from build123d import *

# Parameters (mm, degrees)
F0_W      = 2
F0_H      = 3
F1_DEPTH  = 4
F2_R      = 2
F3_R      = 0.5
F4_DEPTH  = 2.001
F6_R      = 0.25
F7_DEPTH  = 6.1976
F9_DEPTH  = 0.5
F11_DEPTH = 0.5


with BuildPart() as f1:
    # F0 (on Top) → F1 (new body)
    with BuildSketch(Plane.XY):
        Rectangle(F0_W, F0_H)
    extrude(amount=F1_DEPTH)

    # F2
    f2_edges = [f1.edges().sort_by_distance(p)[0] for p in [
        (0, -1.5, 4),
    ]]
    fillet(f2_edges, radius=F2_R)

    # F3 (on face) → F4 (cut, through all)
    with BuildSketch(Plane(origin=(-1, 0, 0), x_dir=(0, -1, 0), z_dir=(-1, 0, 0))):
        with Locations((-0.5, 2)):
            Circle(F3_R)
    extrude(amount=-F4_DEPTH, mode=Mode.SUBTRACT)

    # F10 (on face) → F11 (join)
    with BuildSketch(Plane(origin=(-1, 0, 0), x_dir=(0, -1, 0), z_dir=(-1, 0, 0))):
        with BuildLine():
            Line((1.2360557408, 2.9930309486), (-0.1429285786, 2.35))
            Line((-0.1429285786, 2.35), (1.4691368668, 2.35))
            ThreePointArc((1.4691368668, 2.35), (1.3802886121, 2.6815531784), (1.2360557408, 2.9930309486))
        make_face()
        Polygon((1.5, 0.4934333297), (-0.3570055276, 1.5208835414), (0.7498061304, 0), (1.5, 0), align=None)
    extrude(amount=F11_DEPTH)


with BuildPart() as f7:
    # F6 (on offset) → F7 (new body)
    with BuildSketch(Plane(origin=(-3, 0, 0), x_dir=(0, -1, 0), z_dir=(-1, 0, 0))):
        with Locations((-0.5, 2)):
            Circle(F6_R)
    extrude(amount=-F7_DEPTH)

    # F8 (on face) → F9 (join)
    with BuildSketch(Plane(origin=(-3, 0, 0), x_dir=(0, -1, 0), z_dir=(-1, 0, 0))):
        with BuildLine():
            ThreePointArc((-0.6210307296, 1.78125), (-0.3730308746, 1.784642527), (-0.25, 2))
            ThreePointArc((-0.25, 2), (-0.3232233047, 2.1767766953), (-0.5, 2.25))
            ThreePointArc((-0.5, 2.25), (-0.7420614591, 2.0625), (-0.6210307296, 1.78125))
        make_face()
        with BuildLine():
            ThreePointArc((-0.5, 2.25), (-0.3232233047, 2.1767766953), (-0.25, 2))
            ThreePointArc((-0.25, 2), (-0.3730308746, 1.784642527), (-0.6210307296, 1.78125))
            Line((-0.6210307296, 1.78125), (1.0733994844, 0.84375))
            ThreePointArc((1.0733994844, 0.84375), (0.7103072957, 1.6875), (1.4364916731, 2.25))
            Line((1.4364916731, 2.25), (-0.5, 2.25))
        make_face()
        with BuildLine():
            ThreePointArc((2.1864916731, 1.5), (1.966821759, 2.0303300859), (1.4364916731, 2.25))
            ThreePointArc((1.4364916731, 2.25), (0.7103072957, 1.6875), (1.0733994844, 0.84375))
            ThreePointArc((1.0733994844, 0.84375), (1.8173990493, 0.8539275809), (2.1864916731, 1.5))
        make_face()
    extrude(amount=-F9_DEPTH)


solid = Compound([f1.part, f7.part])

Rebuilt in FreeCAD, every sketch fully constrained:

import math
import FreeCAD as App
import Part
import Sketcher

V = App.Vector
Q = App.Units.Quantity


def edges_at(feature, points):
    """Names of the edges that pass closest to the given points."""
    edges = feature.Shape.Edges
    near = lambda p: min(range(len(edges)), key=lambda i: edges[i].distToShape(Part.Vertex(*p))[0])
    return sorted({f"Edge{near(p) + 1}" for p in points})

doc = App.newDocument("Part")
body = doc.addObject("PartDesign::Body", "Body")

sketch1 = doc.addObject("Sketcher::SketchObject", "Sketch")
body.addObject(sketch1)
sketch1.AttachmentSupport = (doc.XY_Plane, [""])
sketch1.MapMode = "FlatFace"
sketch1.addGeometry([
    Part.LineSegment(V(-1, 1.5, 0), V(-1, -1.5, 0)),
    Part.LineSegment(V(-1, -1.5, 0), V(1, -1.5, 0)),
    Part.LineSegment(V(1, -1.5, 0), V(1, 1.5, 0)),
    Part.LineSegment(V(1, 1.5, 0), V(-1, 1.5, 0)),
], False)
sketch1.addConstraint([
    Sketcher.Constraint("Coincident", 0, 2, 1, 1),
    Sketcher.Constraint("Coincident", 1, 2, 2, 1),
    Sketcher.Constraint("Coincident", 2, 2, 3, 1),
    Sketcher.Constraint("Coincident", 3, 2, 0, 1),
    Sketcher.Constraint("Vertical", 0),
    Sketcher.Constraint("Horizontal", 1),
    Sketcher.Constraint("Vertical", 2),
    Sketcher.Constraint("Horizontal", 3),
    Sketcher.Constraint("Symmetric", 0, 2, 2, 2, -1, 1),
    Sketcher.Constraint("DistanceX", 1, 1, 1, 2, 2.0),
    Sketcher.Constraint("DistanceY", 0, 2, 0, 1, 3.0),
])
pad1 = doc.addObject("PartDesign::Pad", "Pad")
body.addObject(pad1)
pad1.Profile = sketch1
pad1.Length = 4
doc.recompute()

fillet = doc.addObject("PartDesign::Fillet", "Fillet")
body.addObject(fillet)
fillet.Base = (pad1, edges_at(pad1, [(0, -1.5, 4)]))
fillet.Radius = 2

sketch2 = doc.addObject("Sketcher::SketchObject", "Sketch001")
body.addObject(sketch2)
sketch2.AttachmentSupport = (doc.YZ_Plane, [""])
sketch2.MapMode = "FlatFace"
sketch2.AttachmentOffset = App.Placement(V(0, 0, -1), App.Rotation())
sketch2.addGeometry(Part.Circle(V(0.5, 2, 0), V(0, 0, 1), 0.5), False)
sketch2.addConstraint([
    Sketcher.Constraint("Diameter", 0, 1.0),
    Sketcher.Constraint("DistanceY", -1, 1, 0, 3, 2.0),
    Sketcher.Constraint("DistanceX", -1, 1, 0, 3, 0.5),
])
pocket1 = doc.addObject("PartDesign::Pocket", "Pocket")
body.addObject(pocket1)
pocket1.Profile = sketch2
pocket1.Type = "ThroughAll"
pocket1.Reversed = True

sketch3 = doc.addObject("Sketcher::SketchObject", "Sketch002")
body.addObject(sketch3)
sketch3.AttachmentSupport = (doc.YZ_Plane, [""])
sketch3.MapMode = "FlatFace"
sketch3.AttachmentOffset = App.Placement(V(0, 0, -1), App.Rotation())
sketch3.addGeometry([
    Part.LineSegment(V(-1.236056, 2.993031, 0), V(0.142929, 2.35, 0)),
    Part.LineSegment(V(0.142929, 2.35, 0), V(-1.469137, 2.35, 0)),
    Part.ArcOfCircle(Part.Circle(V(0.5, 2, 0), V(0, 0, 1), 2), math.radians(150.230268), math.radians(169.921342)),
    Part.LineSegment(V(-1.5, 0.493433, 0), V(0.357006, 1.520884, 0)),
    Part.LineSegment(V(0.357006, 1.520884, 0), V(-0.749806, 0, 0)),
    Part.LineSegment(V(-0.749806, 0, 0), V(-1.5, 0, 0)),
    Part.LineSegment(V(-1.5, 0, 0), V(-1.5, 0.493433, 0)),
], False)
sketch3.addConstraint([
    Sketcher.Constraint("Coincident", 0, 2, 1, 1),
    Sketcher.Constraint("Coincident", 1, 2, 2, 2),
    Sketcher.Constraint("Coincident", 2, 1, 0, 1),
    Sketcher.Constraint("Coincident", 3, 2, 4, 1),
    Sketcher.Constraint("Coincident", 4, 2, 5, 1),
    Sketcher.Constraint("Coincident", 5, 2, 6, 1),
    Sketcher.Constraint("Coincident", 6, 2, 3, 1),
    Sketcher.Constraint("Horizontal", 1),
    Sketcher.Constraint("Horizontal", 5),
    Sketcher.Constraint("Vertical", 6),
    Sketcher.Constraint("PointOnObject", 4, 2, -1),
    Sketcher.Constraint("Radius", 2, 2.0),
    Sketcher.Constraint("Angle", 0, Q("-25 deg")),
    Sketcher.Constraint("DistanceY", -1, 1, 2, 3, 2.0),
    Sketcher.Constraint("DistanceX", 5, 2, 2, 3, 2.0),
    Sketcher.Constraint("DistanceX", -1, 1, 2, 3, 0.5),
    Sketcher.Constraint("DistanceY", -1, 1, 0, 2, 2.35),
    Sketcher.Constraint("Distance", 0, 1.521541),
    Sketcher.Constraint("Distance", 4, 1.880989),
    Sketcher.Constraint("DistanceX", 5, 2, 5, 1, 0.750194),
    Sketcher.Constraint("DistanceY", 6, 1, 6, 2, 0.493433),
    Sketcher.Constraint("DistanceX", 2, 1, 3, 2, 1.593061),
])
pad2 = doc.addObject("PartDesign::Pad", "Pad001")
body.addObject(pad2)
pad2.Profile = sketch3
pad2.Length = 0.5
pad2.Reversed = True
body2 = doc.addObject("PartDesign::Body", "Body001")

sketch4 = doc.addObject("Sketcher::SketchObject", "Sketch003")
body2.addObject(sketch4)
sketch4.AttachmentSupport = (doc.getObject("YZ_Plane001"), [""])
sketch4.MapMode = "FlatFace"
sketch4.AttachmentOffset = App.Placement(V(0, 0, -3), App.Rotation())
sketch4.addGeometry(Part.Circle(V(0.5, 2, 0), V(0, 0, 1), 0.25), False)
sketch4.addConstraint([
    Sketcher.Constraint("Diameter", 0, 0.5),
    Sketcher.Constraint("DistanceY", -1, 1, 0, 3, 2.0),
    Sketcher.Constraint("DistanceX", -1, 1, 0, 3, 0.5),
])
pad3 = doc.addObject("PartDesign::Pad", "Pad002")
body2.addObject(pad3)
pad3.Profile = sketch4
pad3.Length = 6.1976

sketch5 = doc.addObject("Sketcher::SketchObject", "Sketch004")
body2.addObject(sketch5)
sketch5.AttachmentSupport = (doc.getObject("YZ_Plane001"), [""])
sketch5.MapMode = "FlatFace"
sketch5.AttachmentOffset = App.Placement(V(0, 0, -3), App.Rotation())
sketch5.addGeometry([
    Part.ArcOfCircle(Part.Circle(V(0.5, 2, 0), V(0, 0, 1), 0.25), math.radians(-61.044976), math.radians(90)),
    Part.LineSegment(V(0.621031, 1.78125, 0), V(-1.073399, 0.84375, 0)),
    Part.ArcOfCircle(Part.Circle(V(-1.436492, 1.5, 0), V(0, 0, 1), 0.75), math.radians(180), math.radians(298.955024)),
    Part.ArcOfCircle(Part.Circle(V(-1.436492, 1.5, 0), V(0, 0, 1), 0.75), math.radians(90), math.radians(180)),
    Part.LineSegment(V(-1.436492, 2.25, 0), V(0.5, 2.25, 0)),
], False)
sketch5.addConstraint([
    Sketcher.Constraint("Tangent", 0, 1, 1, 1),
    Sketcher.Constraint("Tangent", 1, 2, 2, 2),
    Sketcher.Constraint("Tangent", 2, 1, 3, 2),
    Sketcher.Constraint("Tangent", 3, 1, 4, 1),
    Sketcher.Constraint("Tangent", 4, 2, 0, 2),
    Sketcher.Constraint("Horizontal", 4),
    Sketcher.Constraint("Equal", 2, 3),
    Sketcher.Constraint("Horizontal", 3, 3, 2, 1),
    Sketcher.Constraint("Radius", 0, 0.25),
    Sketcher.Constraint("Radius", 2, 0.75),
    Sketcher.Constraint("DistanceY", -1, 1, 0, 3, 2.0),
    Sketcher.Constraint("DistanceX", -1, 1, 0, 3, 0.5),
    Sketcher.Constraint("DistanceX", 4, 1, 4, 2, 1.936492),
])
pad4 = doc.addObject("PartDesign::Pad", "Pad003")
body2.addObject(pad4)
pad4.Profile = sketch5
pad4.Length = 0.5

doc.recompute()
